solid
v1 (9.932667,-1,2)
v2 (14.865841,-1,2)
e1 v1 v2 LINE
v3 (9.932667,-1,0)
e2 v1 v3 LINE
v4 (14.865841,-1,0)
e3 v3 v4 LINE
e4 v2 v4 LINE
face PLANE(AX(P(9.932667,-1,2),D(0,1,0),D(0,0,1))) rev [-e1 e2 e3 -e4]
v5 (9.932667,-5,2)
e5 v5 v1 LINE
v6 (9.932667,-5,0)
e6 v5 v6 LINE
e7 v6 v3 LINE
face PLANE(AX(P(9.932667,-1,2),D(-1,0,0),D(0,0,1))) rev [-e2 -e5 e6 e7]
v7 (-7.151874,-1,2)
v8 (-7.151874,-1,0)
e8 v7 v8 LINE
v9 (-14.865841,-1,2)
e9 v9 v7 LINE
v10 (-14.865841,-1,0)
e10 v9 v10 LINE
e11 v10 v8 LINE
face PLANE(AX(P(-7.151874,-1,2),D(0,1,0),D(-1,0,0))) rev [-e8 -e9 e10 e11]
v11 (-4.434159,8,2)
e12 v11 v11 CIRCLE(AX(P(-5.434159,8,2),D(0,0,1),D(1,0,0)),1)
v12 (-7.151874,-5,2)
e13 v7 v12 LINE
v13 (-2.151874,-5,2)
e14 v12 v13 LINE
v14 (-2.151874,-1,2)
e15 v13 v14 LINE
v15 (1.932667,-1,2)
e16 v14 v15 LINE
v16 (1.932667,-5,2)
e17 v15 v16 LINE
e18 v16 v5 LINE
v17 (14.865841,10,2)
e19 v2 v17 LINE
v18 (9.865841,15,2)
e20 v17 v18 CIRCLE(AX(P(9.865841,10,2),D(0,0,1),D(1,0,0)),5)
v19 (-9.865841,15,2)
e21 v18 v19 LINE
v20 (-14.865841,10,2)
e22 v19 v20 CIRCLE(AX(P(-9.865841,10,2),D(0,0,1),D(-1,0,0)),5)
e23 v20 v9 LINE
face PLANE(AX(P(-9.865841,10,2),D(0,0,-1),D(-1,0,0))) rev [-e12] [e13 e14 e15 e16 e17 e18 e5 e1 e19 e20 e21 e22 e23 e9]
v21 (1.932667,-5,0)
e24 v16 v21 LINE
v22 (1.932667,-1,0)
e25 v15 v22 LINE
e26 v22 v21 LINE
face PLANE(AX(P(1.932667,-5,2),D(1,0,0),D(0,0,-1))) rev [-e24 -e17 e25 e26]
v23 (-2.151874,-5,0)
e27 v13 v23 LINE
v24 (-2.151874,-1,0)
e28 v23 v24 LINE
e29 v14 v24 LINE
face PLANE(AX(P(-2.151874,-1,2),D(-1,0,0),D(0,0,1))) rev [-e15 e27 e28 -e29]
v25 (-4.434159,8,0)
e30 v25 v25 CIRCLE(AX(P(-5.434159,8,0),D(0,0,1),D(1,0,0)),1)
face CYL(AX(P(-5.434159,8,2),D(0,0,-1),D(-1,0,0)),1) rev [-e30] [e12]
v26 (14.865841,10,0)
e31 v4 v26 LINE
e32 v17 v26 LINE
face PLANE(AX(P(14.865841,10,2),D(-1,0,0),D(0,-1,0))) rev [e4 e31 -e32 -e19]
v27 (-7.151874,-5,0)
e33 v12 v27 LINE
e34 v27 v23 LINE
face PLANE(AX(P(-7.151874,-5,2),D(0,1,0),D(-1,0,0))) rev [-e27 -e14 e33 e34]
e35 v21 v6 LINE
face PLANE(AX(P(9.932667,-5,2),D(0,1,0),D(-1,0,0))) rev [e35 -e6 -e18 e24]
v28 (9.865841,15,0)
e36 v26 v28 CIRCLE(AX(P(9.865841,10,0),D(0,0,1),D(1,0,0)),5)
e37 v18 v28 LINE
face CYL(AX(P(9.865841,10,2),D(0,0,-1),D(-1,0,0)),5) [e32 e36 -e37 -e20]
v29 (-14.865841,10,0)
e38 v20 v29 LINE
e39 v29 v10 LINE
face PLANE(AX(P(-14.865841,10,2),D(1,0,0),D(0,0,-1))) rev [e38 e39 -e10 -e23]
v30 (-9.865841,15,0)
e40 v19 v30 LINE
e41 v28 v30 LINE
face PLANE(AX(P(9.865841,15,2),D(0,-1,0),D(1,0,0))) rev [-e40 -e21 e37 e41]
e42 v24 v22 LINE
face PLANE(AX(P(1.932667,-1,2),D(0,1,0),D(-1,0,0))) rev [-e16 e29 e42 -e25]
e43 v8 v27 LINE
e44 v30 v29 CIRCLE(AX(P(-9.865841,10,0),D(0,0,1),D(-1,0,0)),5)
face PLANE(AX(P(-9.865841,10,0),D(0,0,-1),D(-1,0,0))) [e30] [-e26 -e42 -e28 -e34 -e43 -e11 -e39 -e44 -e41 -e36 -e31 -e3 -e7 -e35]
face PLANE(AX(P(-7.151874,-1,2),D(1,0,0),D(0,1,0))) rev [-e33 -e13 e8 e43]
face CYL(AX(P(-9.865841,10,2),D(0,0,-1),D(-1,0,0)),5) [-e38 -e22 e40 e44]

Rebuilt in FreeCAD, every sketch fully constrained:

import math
import FreeCAD as App
import Part
import Sketcher
Q = App.Units.Quantity

doc = App.newDocument("Part")
body = doc.addObject("PartDesign::Body", "Body")

# Sketch on XY plane
sketch1 = body.newObject("Sketcher::SketchObject", "Sketch")
sketch1.AttachmentSupport = (doc.getObject("XY_Plane"), [""])
sketch1.MapMode = "FlatFace"
sketch1.addGeometry(Part.LineSegment(App.Vector(9.932667, -1, 0), App.Vector(14.865841, -1, 0)), False)
sketch1.addGeometry(Part.LineSegment(App.Vector(14.865841, -1, 0), App.Vector(14.865841, 10, 0)), False)
sketch1.addGeometry(Part.ArcOfCircle(Part.Circle(App.Vector(9.865841, 10, 0), App.Vector(0, 0, 1), 5), math.radians(0), math.radians(90)), False)
sketch1.addGeometry(Part.LineSegment(App.Vector(9.865841, 15, 0), App.Vector(-9.865841, 15, 0)), False)
sketch1.addGeometry(Part.ArcOfCircle(Part.Circle(App.Vector(-9.865841, 10, 0), App.Vector(0, 0, 1), 5), math.radians(90), math.radians(180)), False)
sketch1.addGeometry(Part.LineSegment(App.Vector(-14.865841, 10, 0), App.Vector(-14.865841, -1, 0)), False)
sketch1.addGeometry(Part.LineSegment(App.Vector(-14.865841, -1, 0), App.Vector(-7.151874, -1, 0)), False)
sketch1.addGeometry(Part.LineSegment(App.Vector(-7.151874, -1, 0), App.Vector(-7.151874, -5, 0)), False)
sketch1.addGeometry(Part.LineSegment(App.Vector(-7.151874, -5, 0), App.Vector(-2.151874, -5, 0)), False)
sketch1.addGeometry(Part.LineSegment(App.Vector(-2.151874, -5, 0), App.Vector(-2.151874, -1, 0)), False)
sketch1.addGeometry(Part.LineSegment(App.Vector(-2.151874, -1, 0), App.Vector(1.932667, -1, 0)), False)
sketch1.addGeometry(Part.LineSegment(App.Vector(1.932667, -1, 0), App.Vector(1.932667, -5, 0)), False)
sketch1.addGeometry(Part.LineSegment(App.Vector(1.932667, -5, 0), App.Vector(9.932667, -5, 0)), False)
sketch1.addGeometry(Part.LineSegment(App.Vector(9.932667, -5, 0), App.Vector(9.932667, -1, 0)), False)
sketch1.addGeometry(Part.Circle(App.Vector(-5.434159, 8, 0), App.Vector(0, 0, 1), 1), False)
sketch1.addConstraint(Sketcher.Constraint("Coincident", 0, 2, 1, 1))
sketch1.addConstraint(Sketcher.Constraint("Tangent", 1, 2, 2, 1))
sketch1.addConstraint(Sketcher.Constraint("Tangent", 2, 2, 3, 1))
sketch1.addConstraint(Sketcher.Constraint("Tangent", 3, 2, 4, 1))
sketch1.addConstraint(Sketcher.Constraint("Tangent", 4, 2, 5, 1))
sketch1.addConstraint(Sketcher.Constraint("Coincident", 5, 2, 6, 1))
sketch1.addConstraint(Sketcher.Constraint("Coincident", 6, 2, 7, 1))
sketch1.addConstraint(Sketcher.Constraint("Coincident", 7, 2, 8, 1))
sketch1.addConstraint(Sketcher.Constraint("Coincident", 8, 2, 9, 1))
sketch1.addConstraint(Sketcher.Constraint("Coincident", 9, 2, 10, 1))
sketch1.addConstraint(Sketcher.Constraint("Coincident", 10, 2, 11, 1))
sketch1.addConstraint(Sketcher.Constraint("Coincident", 11, 2, 12, 1))
sketch1.addConstraint(Sketcher.Constraint("Coincident", 12, 2, 13, 1))
sketch1.addConstraint(Sketcher.Constraint("Coincident", 13, 2, 0, 1))
sketch1.addConstraint(Sketcher.Constraint("Horizontal", 0))
sketch1.addConstraint(Sketcher.Constraint("Vertical", 1))
sketch1.addConstraint(Sketcher.Constraint("Horizontal", 3))
sketch1.addConstraint(Sketcher.Constraint("Vertical", 5))
sketch1.addConstraint(Sketcher.Constraint("Horizontal", 6))
sketch1.addConstraint(Sketcher.Constraint("Vertical", 7))
sketch1.addConstraint(Sketcher.Constraint("Horizontal", 8))
sketch1.addConstraint(Sketcher.Constraint("Vertical", 9))
sketch1.addConstraint(Sketcher.Constraint("Horizontal", 10))
sketch1.addConstraint(Sketcher.Constraint("Vertical", 11))
sketch1.addConstraint(Sketcher.Constraint("Horizontal", 12))
sketch1.addConstraint(Sketcher.Constraint("Vertical", 13))
sketch1.addConstraint(Sketcher.Constraint("Equal", 2, 4))
sketch1.addConstraint(Sketcher.Constraint("Symmetric", 0, 2, 5, 2, -2))
sketch1.addConstraint(Sketcher.Constraint("Horizontal", 6, 2, 9, 2))
sketch1.addConstraint(Sketcher.Constraint("Horizontal", 8, 2, 11, 2))
sketch1.addConstraint(Sketcher.Constraint("Diameter", 14, Q("2 mm")))
sketch1.addConstraint(Sketcher.Constraint("Radius", 2, Q("5 mm")))
sketch1.addConstraint(Sketcher.Constraint("DistanceX", 8, 1, 8, 2, Q("5 mm")))
sketch1.addConstraint(Sketcher.Constraint("DistanceX", 12, 1, 12, 2, Q("8 mm")))
sketch1.addConstraint(Sketcher.Constraint("DistanceY", 1, 1, 1, 2, Q("11 mm")))
sketch1.addConstraint(Sketcher.Constraint("DistanceY", 7, 2, 7, 1, Q("4 mm")))
sketch1.addConstraint(Sketcher.Constraint("DistanceY", -1, 1, 2, 3, Q("10 mm")))
sketch1.addConstraint(Sketcher.Constraint("DistanceY", -1, 1, 14, 3, Q("8 mm")))
sketch1.addConstraint(Sketcher.Constraint("DistanceX", 14, 3, 2, 3, Q("15.3 mm")))
sketch1.addConstraint(Sketcher.Constraint("DistanceX", 10, 1, 10, 2, Q("4.084541 mm")))
sketch1.addConstraint(Sketcher.Constraint("DistanceX", 0, 1, 0, 2, Q("4.933174 mm")))
sketch1.addConstraint(Sketcher.Constraint("DistanceX", 3, 2, 3, 1, Q("19.731682 mm")))
pad1 = body.newObject("PartDesign::Pad", "Pad")
pad1.Profile = sketch1
pad1.Length = 2

doc.recompute()
